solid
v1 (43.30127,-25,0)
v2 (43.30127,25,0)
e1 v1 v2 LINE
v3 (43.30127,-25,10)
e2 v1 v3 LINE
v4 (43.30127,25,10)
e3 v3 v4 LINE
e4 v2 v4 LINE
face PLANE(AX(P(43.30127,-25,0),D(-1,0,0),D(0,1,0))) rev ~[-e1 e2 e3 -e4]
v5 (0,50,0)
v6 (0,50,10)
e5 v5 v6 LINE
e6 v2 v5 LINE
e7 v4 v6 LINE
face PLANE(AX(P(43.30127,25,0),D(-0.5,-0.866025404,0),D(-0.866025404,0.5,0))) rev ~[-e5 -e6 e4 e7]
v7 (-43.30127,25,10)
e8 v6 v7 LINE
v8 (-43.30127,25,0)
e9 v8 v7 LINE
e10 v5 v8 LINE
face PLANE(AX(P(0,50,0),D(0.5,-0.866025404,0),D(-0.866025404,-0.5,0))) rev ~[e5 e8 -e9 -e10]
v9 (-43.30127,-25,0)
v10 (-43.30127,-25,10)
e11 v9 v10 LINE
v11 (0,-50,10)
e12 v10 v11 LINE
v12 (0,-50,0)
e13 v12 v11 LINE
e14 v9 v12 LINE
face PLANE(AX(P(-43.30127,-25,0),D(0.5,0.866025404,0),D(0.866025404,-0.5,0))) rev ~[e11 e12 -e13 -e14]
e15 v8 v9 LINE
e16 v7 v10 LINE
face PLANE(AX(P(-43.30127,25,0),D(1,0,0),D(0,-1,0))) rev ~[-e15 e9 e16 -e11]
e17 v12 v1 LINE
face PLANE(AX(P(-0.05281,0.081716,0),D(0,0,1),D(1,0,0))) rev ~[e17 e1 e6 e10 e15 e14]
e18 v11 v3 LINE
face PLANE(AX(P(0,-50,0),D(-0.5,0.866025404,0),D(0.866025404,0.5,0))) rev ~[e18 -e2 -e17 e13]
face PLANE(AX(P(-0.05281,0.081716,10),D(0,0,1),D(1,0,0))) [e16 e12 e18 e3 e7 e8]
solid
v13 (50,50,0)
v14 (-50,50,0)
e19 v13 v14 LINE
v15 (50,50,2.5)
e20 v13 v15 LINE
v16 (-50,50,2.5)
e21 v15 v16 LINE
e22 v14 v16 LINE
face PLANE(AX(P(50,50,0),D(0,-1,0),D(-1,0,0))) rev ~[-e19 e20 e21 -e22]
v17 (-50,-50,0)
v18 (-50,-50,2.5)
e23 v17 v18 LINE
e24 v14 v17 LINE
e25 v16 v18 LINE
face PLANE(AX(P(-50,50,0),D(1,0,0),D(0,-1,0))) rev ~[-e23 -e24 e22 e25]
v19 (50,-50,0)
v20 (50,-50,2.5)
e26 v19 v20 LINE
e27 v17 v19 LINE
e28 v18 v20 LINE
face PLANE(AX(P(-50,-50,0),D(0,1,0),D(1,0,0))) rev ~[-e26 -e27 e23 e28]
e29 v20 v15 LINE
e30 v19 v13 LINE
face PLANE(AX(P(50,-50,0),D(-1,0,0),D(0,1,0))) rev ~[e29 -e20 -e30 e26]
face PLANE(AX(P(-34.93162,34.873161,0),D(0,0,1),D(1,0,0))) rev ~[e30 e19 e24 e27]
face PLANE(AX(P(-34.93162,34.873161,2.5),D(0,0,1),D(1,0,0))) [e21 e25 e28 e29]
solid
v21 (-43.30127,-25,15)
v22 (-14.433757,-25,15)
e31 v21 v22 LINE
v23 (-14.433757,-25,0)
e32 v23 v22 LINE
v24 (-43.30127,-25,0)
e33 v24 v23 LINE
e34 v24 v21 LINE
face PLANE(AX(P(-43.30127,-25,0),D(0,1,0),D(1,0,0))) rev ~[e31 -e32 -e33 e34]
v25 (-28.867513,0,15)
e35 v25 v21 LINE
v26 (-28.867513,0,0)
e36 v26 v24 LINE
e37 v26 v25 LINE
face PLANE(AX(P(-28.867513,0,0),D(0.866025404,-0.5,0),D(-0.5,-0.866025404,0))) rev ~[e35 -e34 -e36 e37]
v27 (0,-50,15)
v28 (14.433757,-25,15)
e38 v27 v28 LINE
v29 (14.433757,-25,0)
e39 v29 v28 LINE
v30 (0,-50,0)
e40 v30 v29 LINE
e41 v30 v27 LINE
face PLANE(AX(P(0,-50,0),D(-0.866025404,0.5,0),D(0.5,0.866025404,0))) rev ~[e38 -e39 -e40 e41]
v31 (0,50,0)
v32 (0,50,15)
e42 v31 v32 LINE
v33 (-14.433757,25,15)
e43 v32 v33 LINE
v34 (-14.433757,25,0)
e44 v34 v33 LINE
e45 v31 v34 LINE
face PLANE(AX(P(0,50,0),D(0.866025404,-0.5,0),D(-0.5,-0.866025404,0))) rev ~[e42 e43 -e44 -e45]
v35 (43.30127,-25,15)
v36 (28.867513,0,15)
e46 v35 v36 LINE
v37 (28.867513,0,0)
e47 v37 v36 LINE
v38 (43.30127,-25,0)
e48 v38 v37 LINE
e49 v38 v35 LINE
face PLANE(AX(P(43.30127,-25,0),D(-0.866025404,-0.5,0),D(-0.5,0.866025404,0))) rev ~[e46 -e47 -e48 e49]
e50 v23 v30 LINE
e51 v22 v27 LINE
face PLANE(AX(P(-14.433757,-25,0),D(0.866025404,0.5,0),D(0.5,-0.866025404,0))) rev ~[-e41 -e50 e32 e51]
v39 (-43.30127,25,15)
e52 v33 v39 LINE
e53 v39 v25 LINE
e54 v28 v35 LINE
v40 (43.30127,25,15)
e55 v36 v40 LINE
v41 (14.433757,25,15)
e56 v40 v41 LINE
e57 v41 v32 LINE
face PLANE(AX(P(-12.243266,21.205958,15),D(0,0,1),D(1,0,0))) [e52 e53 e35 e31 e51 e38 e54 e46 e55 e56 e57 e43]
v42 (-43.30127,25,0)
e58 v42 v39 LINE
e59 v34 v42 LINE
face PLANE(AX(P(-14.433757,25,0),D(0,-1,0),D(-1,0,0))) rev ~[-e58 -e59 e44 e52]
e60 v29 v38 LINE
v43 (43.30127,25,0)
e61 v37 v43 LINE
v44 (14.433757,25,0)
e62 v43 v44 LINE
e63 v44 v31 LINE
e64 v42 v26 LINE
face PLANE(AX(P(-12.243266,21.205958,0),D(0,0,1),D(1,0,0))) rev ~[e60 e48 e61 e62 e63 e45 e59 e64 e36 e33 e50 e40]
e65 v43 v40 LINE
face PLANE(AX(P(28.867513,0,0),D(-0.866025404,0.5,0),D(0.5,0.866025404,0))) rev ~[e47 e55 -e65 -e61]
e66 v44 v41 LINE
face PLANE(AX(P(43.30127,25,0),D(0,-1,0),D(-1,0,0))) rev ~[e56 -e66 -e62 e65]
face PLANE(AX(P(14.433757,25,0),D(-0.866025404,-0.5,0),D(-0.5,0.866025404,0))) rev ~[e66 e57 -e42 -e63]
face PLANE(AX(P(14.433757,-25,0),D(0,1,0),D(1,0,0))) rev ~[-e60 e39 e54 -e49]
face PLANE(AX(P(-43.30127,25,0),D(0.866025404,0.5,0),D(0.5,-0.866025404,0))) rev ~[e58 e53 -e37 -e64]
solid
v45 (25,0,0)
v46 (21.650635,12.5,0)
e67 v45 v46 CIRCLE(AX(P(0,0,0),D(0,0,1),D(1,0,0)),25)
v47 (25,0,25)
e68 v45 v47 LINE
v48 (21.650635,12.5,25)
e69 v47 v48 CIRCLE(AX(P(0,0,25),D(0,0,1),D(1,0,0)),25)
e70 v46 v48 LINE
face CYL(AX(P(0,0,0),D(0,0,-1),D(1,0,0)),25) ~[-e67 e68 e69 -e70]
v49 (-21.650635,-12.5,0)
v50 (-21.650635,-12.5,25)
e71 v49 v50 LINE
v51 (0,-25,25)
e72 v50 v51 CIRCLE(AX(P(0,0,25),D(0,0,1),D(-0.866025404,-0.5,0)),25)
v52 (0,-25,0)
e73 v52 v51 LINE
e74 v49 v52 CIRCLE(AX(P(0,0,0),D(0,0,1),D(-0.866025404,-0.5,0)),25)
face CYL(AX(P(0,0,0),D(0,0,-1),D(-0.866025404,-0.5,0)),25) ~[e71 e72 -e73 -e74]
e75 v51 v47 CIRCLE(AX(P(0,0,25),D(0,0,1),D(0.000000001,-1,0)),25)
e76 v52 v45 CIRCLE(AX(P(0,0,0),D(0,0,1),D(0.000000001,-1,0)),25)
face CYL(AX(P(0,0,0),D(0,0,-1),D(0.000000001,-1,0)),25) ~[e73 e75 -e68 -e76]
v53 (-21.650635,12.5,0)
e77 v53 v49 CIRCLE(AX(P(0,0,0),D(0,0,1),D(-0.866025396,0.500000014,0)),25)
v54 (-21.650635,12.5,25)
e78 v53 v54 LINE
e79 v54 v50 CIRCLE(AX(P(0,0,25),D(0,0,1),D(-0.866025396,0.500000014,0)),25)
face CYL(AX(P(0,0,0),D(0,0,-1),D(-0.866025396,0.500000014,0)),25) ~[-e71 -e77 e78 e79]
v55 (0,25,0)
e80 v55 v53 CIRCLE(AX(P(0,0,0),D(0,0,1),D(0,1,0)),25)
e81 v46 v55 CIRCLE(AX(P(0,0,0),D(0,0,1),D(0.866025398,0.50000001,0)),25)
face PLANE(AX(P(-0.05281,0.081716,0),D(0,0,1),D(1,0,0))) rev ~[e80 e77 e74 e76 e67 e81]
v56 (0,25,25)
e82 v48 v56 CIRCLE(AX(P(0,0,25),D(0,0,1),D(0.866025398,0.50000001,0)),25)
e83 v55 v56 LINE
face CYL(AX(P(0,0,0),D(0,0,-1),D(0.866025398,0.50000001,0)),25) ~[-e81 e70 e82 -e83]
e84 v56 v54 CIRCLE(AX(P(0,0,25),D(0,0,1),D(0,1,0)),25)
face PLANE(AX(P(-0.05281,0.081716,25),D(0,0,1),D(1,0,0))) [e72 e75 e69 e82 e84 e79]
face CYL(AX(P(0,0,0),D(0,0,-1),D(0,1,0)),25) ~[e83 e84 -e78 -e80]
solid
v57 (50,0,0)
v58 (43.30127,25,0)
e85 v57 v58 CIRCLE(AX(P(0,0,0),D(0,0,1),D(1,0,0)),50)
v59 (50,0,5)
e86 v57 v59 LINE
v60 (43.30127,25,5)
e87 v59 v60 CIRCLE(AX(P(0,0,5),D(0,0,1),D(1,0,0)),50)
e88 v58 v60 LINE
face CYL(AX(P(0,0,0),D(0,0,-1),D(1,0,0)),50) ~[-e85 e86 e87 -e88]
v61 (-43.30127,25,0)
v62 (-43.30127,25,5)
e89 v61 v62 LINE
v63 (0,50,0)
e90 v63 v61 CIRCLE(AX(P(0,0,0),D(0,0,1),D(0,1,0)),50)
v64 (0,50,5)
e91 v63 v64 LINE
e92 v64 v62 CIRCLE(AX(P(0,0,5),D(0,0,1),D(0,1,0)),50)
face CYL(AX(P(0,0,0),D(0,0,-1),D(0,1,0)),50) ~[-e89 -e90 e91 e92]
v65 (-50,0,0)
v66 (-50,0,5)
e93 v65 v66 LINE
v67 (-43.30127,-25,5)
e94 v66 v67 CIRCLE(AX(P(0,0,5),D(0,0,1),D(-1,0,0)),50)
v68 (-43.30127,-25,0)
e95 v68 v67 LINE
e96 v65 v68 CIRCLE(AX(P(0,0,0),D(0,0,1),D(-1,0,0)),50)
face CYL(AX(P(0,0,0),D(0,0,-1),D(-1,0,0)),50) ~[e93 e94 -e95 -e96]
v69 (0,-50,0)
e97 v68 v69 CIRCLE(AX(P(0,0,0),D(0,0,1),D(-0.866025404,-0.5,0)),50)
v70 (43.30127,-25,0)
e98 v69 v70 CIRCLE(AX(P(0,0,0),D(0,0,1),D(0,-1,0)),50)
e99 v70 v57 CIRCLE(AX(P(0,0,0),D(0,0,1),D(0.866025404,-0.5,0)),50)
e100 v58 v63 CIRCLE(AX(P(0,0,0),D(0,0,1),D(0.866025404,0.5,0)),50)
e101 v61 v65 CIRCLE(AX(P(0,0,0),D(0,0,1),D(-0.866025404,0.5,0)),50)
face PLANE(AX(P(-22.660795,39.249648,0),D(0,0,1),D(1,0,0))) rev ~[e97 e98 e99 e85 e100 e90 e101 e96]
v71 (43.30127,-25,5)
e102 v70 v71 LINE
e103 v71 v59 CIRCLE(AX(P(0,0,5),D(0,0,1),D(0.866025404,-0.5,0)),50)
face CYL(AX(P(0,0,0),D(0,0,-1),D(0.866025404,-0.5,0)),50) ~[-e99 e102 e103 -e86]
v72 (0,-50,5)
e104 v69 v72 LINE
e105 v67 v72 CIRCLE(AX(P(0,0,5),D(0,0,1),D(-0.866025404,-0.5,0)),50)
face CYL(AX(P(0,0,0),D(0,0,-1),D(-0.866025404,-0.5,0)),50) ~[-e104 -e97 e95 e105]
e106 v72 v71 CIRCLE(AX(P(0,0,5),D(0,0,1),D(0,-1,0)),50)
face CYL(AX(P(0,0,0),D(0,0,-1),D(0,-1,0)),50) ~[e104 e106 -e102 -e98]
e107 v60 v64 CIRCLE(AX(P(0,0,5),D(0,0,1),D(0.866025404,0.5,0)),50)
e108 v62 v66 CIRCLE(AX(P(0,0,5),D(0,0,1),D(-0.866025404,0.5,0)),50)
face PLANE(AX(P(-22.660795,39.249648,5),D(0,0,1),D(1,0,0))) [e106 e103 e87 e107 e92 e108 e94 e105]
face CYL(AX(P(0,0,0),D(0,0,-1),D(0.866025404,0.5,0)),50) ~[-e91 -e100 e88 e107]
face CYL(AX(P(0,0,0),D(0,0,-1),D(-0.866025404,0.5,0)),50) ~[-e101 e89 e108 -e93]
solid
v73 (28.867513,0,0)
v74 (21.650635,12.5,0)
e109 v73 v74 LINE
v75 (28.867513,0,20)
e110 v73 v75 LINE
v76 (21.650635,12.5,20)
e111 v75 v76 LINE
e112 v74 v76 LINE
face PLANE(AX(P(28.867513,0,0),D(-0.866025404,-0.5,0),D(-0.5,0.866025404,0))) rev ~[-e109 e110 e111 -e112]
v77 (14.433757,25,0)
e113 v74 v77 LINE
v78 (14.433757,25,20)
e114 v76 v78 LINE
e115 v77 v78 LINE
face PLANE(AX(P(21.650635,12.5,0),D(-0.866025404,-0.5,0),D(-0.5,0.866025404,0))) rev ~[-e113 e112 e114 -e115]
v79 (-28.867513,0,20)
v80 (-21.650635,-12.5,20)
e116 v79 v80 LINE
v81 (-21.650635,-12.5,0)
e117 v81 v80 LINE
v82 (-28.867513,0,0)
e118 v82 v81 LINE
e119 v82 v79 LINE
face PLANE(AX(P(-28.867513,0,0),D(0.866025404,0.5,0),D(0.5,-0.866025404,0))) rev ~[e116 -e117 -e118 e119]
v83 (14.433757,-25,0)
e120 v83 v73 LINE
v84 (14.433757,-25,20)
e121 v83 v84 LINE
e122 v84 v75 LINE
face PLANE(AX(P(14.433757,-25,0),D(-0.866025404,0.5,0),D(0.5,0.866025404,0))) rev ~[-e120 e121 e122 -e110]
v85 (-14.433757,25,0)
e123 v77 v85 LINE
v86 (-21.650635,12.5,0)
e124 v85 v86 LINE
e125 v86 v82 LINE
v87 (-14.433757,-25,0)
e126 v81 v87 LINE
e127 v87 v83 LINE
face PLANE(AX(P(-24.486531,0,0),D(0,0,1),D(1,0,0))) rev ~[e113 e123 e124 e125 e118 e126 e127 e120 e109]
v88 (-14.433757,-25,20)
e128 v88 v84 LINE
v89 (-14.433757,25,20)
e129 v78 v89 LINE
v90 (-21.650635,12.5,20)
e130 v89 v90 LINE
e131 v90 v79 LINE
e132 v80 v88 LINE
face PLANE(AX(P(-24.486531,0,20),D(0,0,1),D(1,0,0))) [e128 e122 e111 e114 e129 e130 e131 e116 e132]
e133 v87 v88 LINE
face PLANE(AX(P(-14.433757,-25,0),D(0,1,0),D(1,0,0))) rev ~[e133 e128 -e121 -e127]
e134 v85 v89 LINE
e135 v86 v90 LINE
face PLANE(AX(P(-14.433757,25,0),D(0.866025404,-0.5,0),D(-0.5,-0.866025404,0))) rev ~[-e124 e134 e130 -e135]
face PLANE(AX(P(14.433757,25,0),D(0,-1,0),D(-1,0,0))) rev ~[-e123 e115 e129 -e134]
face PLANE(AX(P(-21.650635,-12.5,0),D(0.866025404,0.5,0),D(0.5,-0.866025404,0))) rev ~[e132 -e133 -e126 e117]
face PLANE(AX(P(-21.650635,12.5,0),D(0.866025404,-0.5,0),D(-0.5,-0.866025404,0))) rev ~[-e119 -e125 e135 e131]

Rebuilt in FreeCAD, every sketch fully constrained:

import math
import FreeCAD as App
import Part
import Sketcher

V = App.Vector
Q = App.Units.Quantity


def add_polygon(sketch, points):
    """Adds a closed chain of lines whose ends are joined by coincident constraints."""
    first, n = sketch.GeometryCount, len(points)
    for a, b in zip(points, points[1:] + points[:1]):
        sketch.addGeometry(Part.LineSegment(App.Vector(*a, 0), App.Vector(*b, 0)), False)
    for i in range(n):
        sketch.addConstraint(Sketcher.Constraint("Coincident", first + i, 2, first + (i + 1) % n, 1))

doc = App.newDocument("Part")
body = doc.addObject("PartDesign::Body", "Body")

sketch1 = body.newObject("Sketcher::SketchObject", "Sketch")
sketch1.AttachmentSupport = (doc.getObject("XY_Plane"), [""])
sketch1.MapMode = "FlatFace"
sketch1.addGeometry(Part.ArcOfCircle(Part.Circle(V(0, 0, 0), V(0, 0, 1), 25), math.radians(30), math.radians(90)), False)
sketch1.addGeometry(Part.ArcOfCircle(Part.Circle(V(0, 0, 0), V(0, 0, 1), 25), math.radians(90), math.radians(150)), False)
sketch1.addGeometry(Part.ArcOfCircle(Part.Circle(V(0, 0, 0), V(0, 0, 1), 25), math.radians(150), math.radians(210)), False)
sketch1.addGeometry(Part.ArcOfCircle(Part.Circle(V(0, 0, 0), V(0, 0, 1), 25), math.radians(-150), math.radians(-90)), False)
sketch1.addGeometry(Part.ArcOfCircle(Part.Circle(V(0, 0, 0), V(0, 0, 1), 25), math.radians(-90), math.radians(0)), False)
sketch1.addGeometry(Part.ArcOfCircle(Part.Circle(V(0, 0, 0), V(0, 0, 1), 25), math.radians(0), math.radians(30)), False)
sketch1.addConstraint(Sketcher.Constraint("Tangent", 0, 2, 1, 1))
sketch1.addConstraint(Sketcher.Constraint("Tangent", 1, 2, 2, 1))
sketch1.addConstraint(Sketcher.Constraint("Tangent", 2, 2, 3, 1))
sketch1.addConstraint(Sketcher.Constraint("Tangent", 3, 2, 4, 1))
sketch1.addConstraint(Sketcher.Constraint("Tangent", 4, 2, 5, 1))
sketch1.addConstraint(Sketcher.Constraint("Tangent", 5, 2, 0, 1))
sketch1.addConstraint(Sketcher.Constraint("Coincident", 0, 3, -1, 1))
sketch1.addConstraint(Sketcher.Constraint("Coincident", 2, 3, -1, 1))
sketch1.addConstraint(Sketcher.Constraint("Equal", 2, 3))
sketch1.addConstraint(Sketcher.Constraint("PointOnObject", 0, 2, -2))
sketch1.addConstraint(Sketcher.Constraint("PointOnObject", 3, 2, -2))
sketch1.addConstraint(Sketcher.Constraint("PointOnObject", 4, 2, -1))
sketch1.addConstraint(Sketcher.Constraint("Horizontal", 1, 2, 5, 2))
sketch1.addConstraint(Sketcher.Constraint("Vertical", 1, 2, 2, 2))
sketch1.addConstraint(Sketcher.Constraint("Radius", 0, 25.0))
sketch1.addConstraint(Sketcher.Constraint("DistanceY", -1, 1, 1, 2, 12.5))
pad1 = body.newObject("PartDesign::Pad", "Pad")
pad1.Profile = sketch1
pad1.Length = 25
body2 = doc.addObject("PartDesign::Body", "Body001")

sketch2 = body2.newObject("Sketcher::SketchObject", "Sketch001")
sketch2.AttachmentSupport = (doc.getObject("XY_Plane001"), [""])
sketch2.MapMode = "FlatFace"
add_polygon(sketch2, [(-22, 13), (-29, 0), (-22, -12), (-14, -25), (14, -25), (29, 0), (22, 13), (14, 25), (-14, 25)])
sketch2.addConstraint(Sketcher.Constraint("Horizontal", 3))
sketch2.addConstraint(Sketcher.Constraint("Horizontal", 7))
sketch2.addConstraint(Sketcher.Constraint("Symmetric", 0, 2, 4, 2, -1, 1))
sketch2.addConstraint(Sketcher.Constraint("Symmetric", 1, 2, 5, 2, -1, 1))
sketch2.addConstraint(Sketcher.Constraint("Symmetric", 2, 2, 6, 2, -1, 1))
sketch2.addConstraint(Sketcher.Constraint("Symmetric", 5, 2, 8, 2, -2))
sketch2.addConstraint(Sketcher.Constraint("PointOnObject", 0, 2, -1))
sketch2.addConstraint(Sketcher.Constraint("Parallel", 1, 2))
sketch2.addConstraint(Sketcher.Constraint("Parallel", 0, 4))
sketch2.addConstraint(Sketcher.Constraint("Parallel", 4, 8))
sketch2.addConstraint(Sketcher.Constraint("Equal", 1, 2))
sketch2.addConstraint(Sketcher.Constraint("Angle", 0, Q("-120 deg")))
sketch2.addConstraint(Sketcher.Constraint("DistanceY", 2, 2, -1, 1, 25.0))
sketch2.addConstraint(Sketcher.Constraint("DistanceX", 3, 1, 3, 2, 28.867513))
pad2 = body2.newObject("PartDesign::Pad", "Pad001")
pad2.Profile = sketch2
pad2.Length = 20
body3 = doc.addObject("PartDesign::Body", "Body002")

sketch3 = body3.newObject("Sketcher::SketchObject", "Sketch002")
sketch3.AttachmentSupport = (doc.getObject("XY_Plane002"), [""])
sketch3.MapMode = "FlatFace"
add_polygon(sketch3, [(-14, -25), (0, -50), (14, -25), (43, -25), (29, 0), (43, 25), (14, 25), (0, 50), (-14, 25), (-43, 25), (-29, 0), (-43, -25)])
sketch3.addConstraint(Sketcher.Constraint("Horizontal", 2))
sketch3.addConstraint(Sketcher.Constraint("Horizontal", 5))
sketch3.addConstraint(Sketcher.Constraint("Horizontal", 8))
sketch3.addConstraint(Sketcher.Constraint("Horizontal", 11))
sketch3.addConstraint(Sketcher.Constraint("Symmetric", 0, 2, 6, 2, -1, 1))
sketch3.addConstraint(Sketcher.Constraint("Symmetric", 1, 2, 7, 2, -1, 1))
sketch3.addConstraint(Sketcher.Constraint("Symmetric", 3, 2, 9, 2, -1, 1))
sketch3.addConstraint(Sketcher.Constraint("Symmetric", 4, 2, 10, 2, -1, 1))
sketch3.addConstraint(Sketcher.Constraint("Symmetric", 5, 2, 7, 2, -2))
sketch3.addConstraint(Sketcher.Constraint("PointOnObject", 0, 2, -2))
sketch3.addConstraint(Sketcher.Constraint("PointOnObject", 3, 2, -1))
sketch3.addConstraint(Sketcher.Constraint("Parallel", 0, 3))
sketch3.addConstraint(Sketcher.Constraint("Parallel", 1, 4))
sketch3.addConstraint(Sketcher.Constraint("Parallel", 3, 6))
sketch3.addConstraint(Sketcher.Constraint("Parallel", 6, 9))
sketch3.addConstraint(Sketcher.Constraint("Equal", 1, 3))
sketch3.addConstraint(Sketcher.Constraint("Angle", 0, Q("-60 deg")))
sketch3.addConstraint(Sketcher.Constraint("DistanceY", 0, 2, -1, 1, 50.0))
sketch3.addConstraint(Sketcher.Constraint("DistanceX", 2, 1, 2, 2, 28.867513))
pad3 = body3.newObject("PartDesign::Pad", "Pad002")
pad3.Profile = sketch3
pad3.Length = 15
body4 = doc.addObject("PartDesign::Body", "Body003")

sketch4 = body4.newObject("Sketcher::SketchObject", "Sketch003")
sketch4.AttachmentSupport = (doc.getObject("XY_Plane003"), [""])
sketch4.MapMode = "FlatFace"
add_polygon(sketch4, [(-43, -25), (0, -50), (43, -25), (43, 25), (0, 50), (-43, 25)])
sketch4.addConstraint(Sketcher.Constraint("Vertical", 2))
sketch4.addConstraint(Sketcher.Constraint("Vertical", 5))
sketch4.addConstraint(Sketcher.Constraint("Symmetric", 0, 2, 3, 2, -1, 1))
sketch4.addConstraint(Sketcher.Constraint("Symmetric", 1, 2, 4, 2, -1, 1))
sketch4.addConstraint(Sketcher.Constraint("PointOnObject", 0, 2, -2))
sketch4.addConstraint(Sketcher.Constraint("Parallel", 0, 3))
sketch4.addConstraint(Sketcher.Constraint("Horizontal", 2, 2, 4, 2))
sketch4.addConstraint(Sketcher.Constraint("DistanceY", 2, 1, 2, 2, 50.0))
sketch4.addConstraint(Sketcher.Constraint("Angle", 0, Q("-30 deg")))
sketch4.addConstraint(Sketcher.Constraint("Distance", 0, 50.0))
pad4 = body4.newObject("PartDesign::Pad", "Pad003")
pad4.Profile = sketch4
pad4.Length = 10
body5 = doc.addObject("PartDesign::Body", "Body004")

sketch5 = body5.newObject("Sketcher::SketchObject", "Sketch004")
sketch5.AttachmentSupport = (doc.getObject("XY_Plane004"), [""])
sketch5.MapMode = "FlatFace"
sketch5.addGeometry(Part.ArcOfCircle(Part.Circle(V(0, 0, 0), V(0, 0, 1), 50), math.radians(90), math.radians(150)), False)
sketch5.addGeometry(Part.ArcOfCircle(Part.Circle(V(0, 0, 0), V(0, 0, 1), 50), math.radians(150), math.radians(180)), False)
sketch5.addGeometry(Part.ArcOfCircle(Part.Circle(V(0, 0, 0), V(0, 0, 1), 50), math.radians(180), math.radians(210)), False)
sketch5.addGeometry(Part.ArcOfCircle(Part.Circle(V(0, 0, 0), V(0, 0, 1), 50), math.radians(-150), math.radians(-90)), False)
sketch5.addGeometry(Part.ArcOfCircle(Part.Circle(V(0, 0, 0), V(0, 0, 1), 50), math.radians(-90), math.radians(-30)), False)
sketch5.addGeometry(Part.ArcOfCircle(Part.Circle(V(0, 0, 0), V(0, 0, 1), 50), math.radians(-30), math.radians(0)), False)
sketch5.addGeometry(Part.ArcOfCircle(Part.Circle(V(0, 0, 0), V(0, 0, 1), 50), math.radians(0), math.radians(30)), False)
sketch5.addGeometry(Part.ArcOfCircle(Part.Circle(V(0, 0, 0), V(0, 0, 1), 50), math.radians(30), math.radians(90)), False)
sketch5.addConstraint(Sketcher.Constraint("Tangent", 0, 2, 1, 1))
sketch5.addConstraint(Sketcher.Constraint("Tangent", 1, 2, 2, 1))
sketch5.addConstraint(Sketcher.Constraint("Tangent", 2, 2, 3, 1))
sketch5.addConstraint(Sketcher.Constraint("Tangent", 3, 2, 4, 1))
sketch5.addConstraint(Sketcher.Constraint("Tangent", 4, 2, 5, 1))
sketch5.addConstraint(Sketcher.Constraint("Tangent", 5, 2, 6, 1))
sketch5.addConstraint(Sketcher.Constraint("Tangent", 6, 2, 7, 1))
sketch5.addConstraint(Sketcher.Constraint("Tangent", 7, 2, 0, 1))
sketch5.addConstraint(Sketcher.Constraint("Coincident", 0, 3, -1, 1))
sketch5.addConstraint(Sketcher.Constraint("Coincident", 2, 3, -1, 1))
sketch5.addConstraint(Sketcher.Constraint("Coincident", 4, 3, -1, 1))
sketch5.addConstraint(Sketcher.Constraint("Equal", 4, 5))
sketch5.addConstraint(Sketcher.Constraint("PointOnObject", 1, 2, -1))
sketch5.addConstraint(Sketcher.Constraint("PointOnObject", 3, 2, -2))
sketch5.addConstraint(Sketcher.Constraint("PointOnObject", 5, 2, -1))
sketch5.addConstraint(Sketcher.Constraint("PointOnObject", 7, 2, -2))
sketch5.addConstraint(Sketcher.Constraint("Horizontal", 2, 2, 4, 2))
sketch5.addConstraint(Sketcher.Constraint("Horizontal", 0, 2, 6, 2))
sketch5.addConstraint(Sketcher.Constraint("Vertical", 0, 2, 2, 2))
sketch5.addConstraint(Sketcher.Constraint("Radius", 0, 50.0))
sketch5.addConstraint(Sketcher.Constraint("DistanceY", -1, 1, 0, 2, 25.0))
pad5 = body5.newObject("PartDesign::Pad", "Pad004")
pad5.Profile = sketch5
pad5.Length = 5
body6 = doc.addObject("PartDesign::Body", "Body005")

sketch6 = body6.newObject("Sketcher::SketchObject", "Sketch005")
sketch6.AttachmentSupport = (doc.getObject("XY_Plane005"), [""])
sketch6.MapMode = "FlatFace"
add_polygon(sketch6, [(50, 50), (-50, 50), (-50, -50), (50, -50)])
sketch6.addConstraint(Sketcher.Constraint("Horizontal", 0))
sketch6.addConstraint(Sketcher.Constraint("Vertical", 1))
sketch6.addConstraint(Sketcher.Constraint("Horizontal", 2))
sketch6.addConstraint(Sketcher.Constraint("Vertical", 3))
sketch6.addConstraint(Sketcher.Constraint("Symmetric", 0, 2, 2, 2, -1, 1))
sketch6.addConstraint(Sketcher.Constraint("Equal", 2, 1))
sketch6.addConstraint(Sketcher.Constraint("DistanceX", 0, 2, 0, 1, 100.0))
pad6 = body6.newObject("PartDesign::Pad", "Pad005")
pad6.Profile = sketch6
pad6.Length = 2.5

doc.recompute()
